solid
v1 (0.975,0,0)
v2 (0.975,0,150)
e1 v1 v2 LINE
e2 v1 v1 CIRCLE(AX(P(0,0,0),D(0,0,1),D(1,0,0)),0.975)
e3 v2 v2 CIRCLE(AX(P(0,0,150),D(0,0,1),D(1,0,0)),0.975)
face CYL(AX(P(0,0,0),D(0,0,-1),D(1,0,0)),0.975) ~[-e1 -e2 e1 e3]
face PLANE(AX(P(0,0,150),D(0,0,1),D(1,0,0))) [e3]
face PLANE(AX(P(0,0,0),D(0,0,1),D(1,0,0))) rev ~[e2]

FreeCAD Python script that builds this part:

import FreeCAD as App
import Part
import Sketcher
from FreeCAD import Vector
Q = App.Units.Quantity

doc = App.newDocument("Part")
params = doc.addObject("Spreadsheet::Sheet", "Params")
for row, (alias, value) in enumerate([
    ("sketch1_diameter", "1.95 mm"),
    ("pad1_length", "150 mm"),
], start=1):
    params.set(f"A{row}", alias)
    params.set(f"B{row}", "=" + value)
    params.setAlias(f"B{row}", alias)

body = doc.addObject("PartDesign::Body", "Body")

sketch1 = body.newObject("Sketcher::SketchObject", "Sketch")
sketch1.AttachmentSupport = (doc.getObject("XY_Plane"), [""])
sketch1.MapMode = "FlatFace"
sketch1.addGeometry(Part.Circle(Vector(0, 0, 0), Vector(0, 0, 1), 0.975), False)
sketch1.addConstraint(Sketcher.Constraint("Coincident", 0, 3, -1, 1))
sketch1.addConstraint(Sketcher.Constraint("Diameter", 0, Q("1.95 mm")))
sketch1.setExpression("Constraints[1]", "Params.sketch1_diameter")
pad1 = body.newObject("PartDesign::Pad", "Pad")
pad1.Profile = sketch1
pad1.setExpression("Length", "Params.pad1_length")

doc.recompute()
